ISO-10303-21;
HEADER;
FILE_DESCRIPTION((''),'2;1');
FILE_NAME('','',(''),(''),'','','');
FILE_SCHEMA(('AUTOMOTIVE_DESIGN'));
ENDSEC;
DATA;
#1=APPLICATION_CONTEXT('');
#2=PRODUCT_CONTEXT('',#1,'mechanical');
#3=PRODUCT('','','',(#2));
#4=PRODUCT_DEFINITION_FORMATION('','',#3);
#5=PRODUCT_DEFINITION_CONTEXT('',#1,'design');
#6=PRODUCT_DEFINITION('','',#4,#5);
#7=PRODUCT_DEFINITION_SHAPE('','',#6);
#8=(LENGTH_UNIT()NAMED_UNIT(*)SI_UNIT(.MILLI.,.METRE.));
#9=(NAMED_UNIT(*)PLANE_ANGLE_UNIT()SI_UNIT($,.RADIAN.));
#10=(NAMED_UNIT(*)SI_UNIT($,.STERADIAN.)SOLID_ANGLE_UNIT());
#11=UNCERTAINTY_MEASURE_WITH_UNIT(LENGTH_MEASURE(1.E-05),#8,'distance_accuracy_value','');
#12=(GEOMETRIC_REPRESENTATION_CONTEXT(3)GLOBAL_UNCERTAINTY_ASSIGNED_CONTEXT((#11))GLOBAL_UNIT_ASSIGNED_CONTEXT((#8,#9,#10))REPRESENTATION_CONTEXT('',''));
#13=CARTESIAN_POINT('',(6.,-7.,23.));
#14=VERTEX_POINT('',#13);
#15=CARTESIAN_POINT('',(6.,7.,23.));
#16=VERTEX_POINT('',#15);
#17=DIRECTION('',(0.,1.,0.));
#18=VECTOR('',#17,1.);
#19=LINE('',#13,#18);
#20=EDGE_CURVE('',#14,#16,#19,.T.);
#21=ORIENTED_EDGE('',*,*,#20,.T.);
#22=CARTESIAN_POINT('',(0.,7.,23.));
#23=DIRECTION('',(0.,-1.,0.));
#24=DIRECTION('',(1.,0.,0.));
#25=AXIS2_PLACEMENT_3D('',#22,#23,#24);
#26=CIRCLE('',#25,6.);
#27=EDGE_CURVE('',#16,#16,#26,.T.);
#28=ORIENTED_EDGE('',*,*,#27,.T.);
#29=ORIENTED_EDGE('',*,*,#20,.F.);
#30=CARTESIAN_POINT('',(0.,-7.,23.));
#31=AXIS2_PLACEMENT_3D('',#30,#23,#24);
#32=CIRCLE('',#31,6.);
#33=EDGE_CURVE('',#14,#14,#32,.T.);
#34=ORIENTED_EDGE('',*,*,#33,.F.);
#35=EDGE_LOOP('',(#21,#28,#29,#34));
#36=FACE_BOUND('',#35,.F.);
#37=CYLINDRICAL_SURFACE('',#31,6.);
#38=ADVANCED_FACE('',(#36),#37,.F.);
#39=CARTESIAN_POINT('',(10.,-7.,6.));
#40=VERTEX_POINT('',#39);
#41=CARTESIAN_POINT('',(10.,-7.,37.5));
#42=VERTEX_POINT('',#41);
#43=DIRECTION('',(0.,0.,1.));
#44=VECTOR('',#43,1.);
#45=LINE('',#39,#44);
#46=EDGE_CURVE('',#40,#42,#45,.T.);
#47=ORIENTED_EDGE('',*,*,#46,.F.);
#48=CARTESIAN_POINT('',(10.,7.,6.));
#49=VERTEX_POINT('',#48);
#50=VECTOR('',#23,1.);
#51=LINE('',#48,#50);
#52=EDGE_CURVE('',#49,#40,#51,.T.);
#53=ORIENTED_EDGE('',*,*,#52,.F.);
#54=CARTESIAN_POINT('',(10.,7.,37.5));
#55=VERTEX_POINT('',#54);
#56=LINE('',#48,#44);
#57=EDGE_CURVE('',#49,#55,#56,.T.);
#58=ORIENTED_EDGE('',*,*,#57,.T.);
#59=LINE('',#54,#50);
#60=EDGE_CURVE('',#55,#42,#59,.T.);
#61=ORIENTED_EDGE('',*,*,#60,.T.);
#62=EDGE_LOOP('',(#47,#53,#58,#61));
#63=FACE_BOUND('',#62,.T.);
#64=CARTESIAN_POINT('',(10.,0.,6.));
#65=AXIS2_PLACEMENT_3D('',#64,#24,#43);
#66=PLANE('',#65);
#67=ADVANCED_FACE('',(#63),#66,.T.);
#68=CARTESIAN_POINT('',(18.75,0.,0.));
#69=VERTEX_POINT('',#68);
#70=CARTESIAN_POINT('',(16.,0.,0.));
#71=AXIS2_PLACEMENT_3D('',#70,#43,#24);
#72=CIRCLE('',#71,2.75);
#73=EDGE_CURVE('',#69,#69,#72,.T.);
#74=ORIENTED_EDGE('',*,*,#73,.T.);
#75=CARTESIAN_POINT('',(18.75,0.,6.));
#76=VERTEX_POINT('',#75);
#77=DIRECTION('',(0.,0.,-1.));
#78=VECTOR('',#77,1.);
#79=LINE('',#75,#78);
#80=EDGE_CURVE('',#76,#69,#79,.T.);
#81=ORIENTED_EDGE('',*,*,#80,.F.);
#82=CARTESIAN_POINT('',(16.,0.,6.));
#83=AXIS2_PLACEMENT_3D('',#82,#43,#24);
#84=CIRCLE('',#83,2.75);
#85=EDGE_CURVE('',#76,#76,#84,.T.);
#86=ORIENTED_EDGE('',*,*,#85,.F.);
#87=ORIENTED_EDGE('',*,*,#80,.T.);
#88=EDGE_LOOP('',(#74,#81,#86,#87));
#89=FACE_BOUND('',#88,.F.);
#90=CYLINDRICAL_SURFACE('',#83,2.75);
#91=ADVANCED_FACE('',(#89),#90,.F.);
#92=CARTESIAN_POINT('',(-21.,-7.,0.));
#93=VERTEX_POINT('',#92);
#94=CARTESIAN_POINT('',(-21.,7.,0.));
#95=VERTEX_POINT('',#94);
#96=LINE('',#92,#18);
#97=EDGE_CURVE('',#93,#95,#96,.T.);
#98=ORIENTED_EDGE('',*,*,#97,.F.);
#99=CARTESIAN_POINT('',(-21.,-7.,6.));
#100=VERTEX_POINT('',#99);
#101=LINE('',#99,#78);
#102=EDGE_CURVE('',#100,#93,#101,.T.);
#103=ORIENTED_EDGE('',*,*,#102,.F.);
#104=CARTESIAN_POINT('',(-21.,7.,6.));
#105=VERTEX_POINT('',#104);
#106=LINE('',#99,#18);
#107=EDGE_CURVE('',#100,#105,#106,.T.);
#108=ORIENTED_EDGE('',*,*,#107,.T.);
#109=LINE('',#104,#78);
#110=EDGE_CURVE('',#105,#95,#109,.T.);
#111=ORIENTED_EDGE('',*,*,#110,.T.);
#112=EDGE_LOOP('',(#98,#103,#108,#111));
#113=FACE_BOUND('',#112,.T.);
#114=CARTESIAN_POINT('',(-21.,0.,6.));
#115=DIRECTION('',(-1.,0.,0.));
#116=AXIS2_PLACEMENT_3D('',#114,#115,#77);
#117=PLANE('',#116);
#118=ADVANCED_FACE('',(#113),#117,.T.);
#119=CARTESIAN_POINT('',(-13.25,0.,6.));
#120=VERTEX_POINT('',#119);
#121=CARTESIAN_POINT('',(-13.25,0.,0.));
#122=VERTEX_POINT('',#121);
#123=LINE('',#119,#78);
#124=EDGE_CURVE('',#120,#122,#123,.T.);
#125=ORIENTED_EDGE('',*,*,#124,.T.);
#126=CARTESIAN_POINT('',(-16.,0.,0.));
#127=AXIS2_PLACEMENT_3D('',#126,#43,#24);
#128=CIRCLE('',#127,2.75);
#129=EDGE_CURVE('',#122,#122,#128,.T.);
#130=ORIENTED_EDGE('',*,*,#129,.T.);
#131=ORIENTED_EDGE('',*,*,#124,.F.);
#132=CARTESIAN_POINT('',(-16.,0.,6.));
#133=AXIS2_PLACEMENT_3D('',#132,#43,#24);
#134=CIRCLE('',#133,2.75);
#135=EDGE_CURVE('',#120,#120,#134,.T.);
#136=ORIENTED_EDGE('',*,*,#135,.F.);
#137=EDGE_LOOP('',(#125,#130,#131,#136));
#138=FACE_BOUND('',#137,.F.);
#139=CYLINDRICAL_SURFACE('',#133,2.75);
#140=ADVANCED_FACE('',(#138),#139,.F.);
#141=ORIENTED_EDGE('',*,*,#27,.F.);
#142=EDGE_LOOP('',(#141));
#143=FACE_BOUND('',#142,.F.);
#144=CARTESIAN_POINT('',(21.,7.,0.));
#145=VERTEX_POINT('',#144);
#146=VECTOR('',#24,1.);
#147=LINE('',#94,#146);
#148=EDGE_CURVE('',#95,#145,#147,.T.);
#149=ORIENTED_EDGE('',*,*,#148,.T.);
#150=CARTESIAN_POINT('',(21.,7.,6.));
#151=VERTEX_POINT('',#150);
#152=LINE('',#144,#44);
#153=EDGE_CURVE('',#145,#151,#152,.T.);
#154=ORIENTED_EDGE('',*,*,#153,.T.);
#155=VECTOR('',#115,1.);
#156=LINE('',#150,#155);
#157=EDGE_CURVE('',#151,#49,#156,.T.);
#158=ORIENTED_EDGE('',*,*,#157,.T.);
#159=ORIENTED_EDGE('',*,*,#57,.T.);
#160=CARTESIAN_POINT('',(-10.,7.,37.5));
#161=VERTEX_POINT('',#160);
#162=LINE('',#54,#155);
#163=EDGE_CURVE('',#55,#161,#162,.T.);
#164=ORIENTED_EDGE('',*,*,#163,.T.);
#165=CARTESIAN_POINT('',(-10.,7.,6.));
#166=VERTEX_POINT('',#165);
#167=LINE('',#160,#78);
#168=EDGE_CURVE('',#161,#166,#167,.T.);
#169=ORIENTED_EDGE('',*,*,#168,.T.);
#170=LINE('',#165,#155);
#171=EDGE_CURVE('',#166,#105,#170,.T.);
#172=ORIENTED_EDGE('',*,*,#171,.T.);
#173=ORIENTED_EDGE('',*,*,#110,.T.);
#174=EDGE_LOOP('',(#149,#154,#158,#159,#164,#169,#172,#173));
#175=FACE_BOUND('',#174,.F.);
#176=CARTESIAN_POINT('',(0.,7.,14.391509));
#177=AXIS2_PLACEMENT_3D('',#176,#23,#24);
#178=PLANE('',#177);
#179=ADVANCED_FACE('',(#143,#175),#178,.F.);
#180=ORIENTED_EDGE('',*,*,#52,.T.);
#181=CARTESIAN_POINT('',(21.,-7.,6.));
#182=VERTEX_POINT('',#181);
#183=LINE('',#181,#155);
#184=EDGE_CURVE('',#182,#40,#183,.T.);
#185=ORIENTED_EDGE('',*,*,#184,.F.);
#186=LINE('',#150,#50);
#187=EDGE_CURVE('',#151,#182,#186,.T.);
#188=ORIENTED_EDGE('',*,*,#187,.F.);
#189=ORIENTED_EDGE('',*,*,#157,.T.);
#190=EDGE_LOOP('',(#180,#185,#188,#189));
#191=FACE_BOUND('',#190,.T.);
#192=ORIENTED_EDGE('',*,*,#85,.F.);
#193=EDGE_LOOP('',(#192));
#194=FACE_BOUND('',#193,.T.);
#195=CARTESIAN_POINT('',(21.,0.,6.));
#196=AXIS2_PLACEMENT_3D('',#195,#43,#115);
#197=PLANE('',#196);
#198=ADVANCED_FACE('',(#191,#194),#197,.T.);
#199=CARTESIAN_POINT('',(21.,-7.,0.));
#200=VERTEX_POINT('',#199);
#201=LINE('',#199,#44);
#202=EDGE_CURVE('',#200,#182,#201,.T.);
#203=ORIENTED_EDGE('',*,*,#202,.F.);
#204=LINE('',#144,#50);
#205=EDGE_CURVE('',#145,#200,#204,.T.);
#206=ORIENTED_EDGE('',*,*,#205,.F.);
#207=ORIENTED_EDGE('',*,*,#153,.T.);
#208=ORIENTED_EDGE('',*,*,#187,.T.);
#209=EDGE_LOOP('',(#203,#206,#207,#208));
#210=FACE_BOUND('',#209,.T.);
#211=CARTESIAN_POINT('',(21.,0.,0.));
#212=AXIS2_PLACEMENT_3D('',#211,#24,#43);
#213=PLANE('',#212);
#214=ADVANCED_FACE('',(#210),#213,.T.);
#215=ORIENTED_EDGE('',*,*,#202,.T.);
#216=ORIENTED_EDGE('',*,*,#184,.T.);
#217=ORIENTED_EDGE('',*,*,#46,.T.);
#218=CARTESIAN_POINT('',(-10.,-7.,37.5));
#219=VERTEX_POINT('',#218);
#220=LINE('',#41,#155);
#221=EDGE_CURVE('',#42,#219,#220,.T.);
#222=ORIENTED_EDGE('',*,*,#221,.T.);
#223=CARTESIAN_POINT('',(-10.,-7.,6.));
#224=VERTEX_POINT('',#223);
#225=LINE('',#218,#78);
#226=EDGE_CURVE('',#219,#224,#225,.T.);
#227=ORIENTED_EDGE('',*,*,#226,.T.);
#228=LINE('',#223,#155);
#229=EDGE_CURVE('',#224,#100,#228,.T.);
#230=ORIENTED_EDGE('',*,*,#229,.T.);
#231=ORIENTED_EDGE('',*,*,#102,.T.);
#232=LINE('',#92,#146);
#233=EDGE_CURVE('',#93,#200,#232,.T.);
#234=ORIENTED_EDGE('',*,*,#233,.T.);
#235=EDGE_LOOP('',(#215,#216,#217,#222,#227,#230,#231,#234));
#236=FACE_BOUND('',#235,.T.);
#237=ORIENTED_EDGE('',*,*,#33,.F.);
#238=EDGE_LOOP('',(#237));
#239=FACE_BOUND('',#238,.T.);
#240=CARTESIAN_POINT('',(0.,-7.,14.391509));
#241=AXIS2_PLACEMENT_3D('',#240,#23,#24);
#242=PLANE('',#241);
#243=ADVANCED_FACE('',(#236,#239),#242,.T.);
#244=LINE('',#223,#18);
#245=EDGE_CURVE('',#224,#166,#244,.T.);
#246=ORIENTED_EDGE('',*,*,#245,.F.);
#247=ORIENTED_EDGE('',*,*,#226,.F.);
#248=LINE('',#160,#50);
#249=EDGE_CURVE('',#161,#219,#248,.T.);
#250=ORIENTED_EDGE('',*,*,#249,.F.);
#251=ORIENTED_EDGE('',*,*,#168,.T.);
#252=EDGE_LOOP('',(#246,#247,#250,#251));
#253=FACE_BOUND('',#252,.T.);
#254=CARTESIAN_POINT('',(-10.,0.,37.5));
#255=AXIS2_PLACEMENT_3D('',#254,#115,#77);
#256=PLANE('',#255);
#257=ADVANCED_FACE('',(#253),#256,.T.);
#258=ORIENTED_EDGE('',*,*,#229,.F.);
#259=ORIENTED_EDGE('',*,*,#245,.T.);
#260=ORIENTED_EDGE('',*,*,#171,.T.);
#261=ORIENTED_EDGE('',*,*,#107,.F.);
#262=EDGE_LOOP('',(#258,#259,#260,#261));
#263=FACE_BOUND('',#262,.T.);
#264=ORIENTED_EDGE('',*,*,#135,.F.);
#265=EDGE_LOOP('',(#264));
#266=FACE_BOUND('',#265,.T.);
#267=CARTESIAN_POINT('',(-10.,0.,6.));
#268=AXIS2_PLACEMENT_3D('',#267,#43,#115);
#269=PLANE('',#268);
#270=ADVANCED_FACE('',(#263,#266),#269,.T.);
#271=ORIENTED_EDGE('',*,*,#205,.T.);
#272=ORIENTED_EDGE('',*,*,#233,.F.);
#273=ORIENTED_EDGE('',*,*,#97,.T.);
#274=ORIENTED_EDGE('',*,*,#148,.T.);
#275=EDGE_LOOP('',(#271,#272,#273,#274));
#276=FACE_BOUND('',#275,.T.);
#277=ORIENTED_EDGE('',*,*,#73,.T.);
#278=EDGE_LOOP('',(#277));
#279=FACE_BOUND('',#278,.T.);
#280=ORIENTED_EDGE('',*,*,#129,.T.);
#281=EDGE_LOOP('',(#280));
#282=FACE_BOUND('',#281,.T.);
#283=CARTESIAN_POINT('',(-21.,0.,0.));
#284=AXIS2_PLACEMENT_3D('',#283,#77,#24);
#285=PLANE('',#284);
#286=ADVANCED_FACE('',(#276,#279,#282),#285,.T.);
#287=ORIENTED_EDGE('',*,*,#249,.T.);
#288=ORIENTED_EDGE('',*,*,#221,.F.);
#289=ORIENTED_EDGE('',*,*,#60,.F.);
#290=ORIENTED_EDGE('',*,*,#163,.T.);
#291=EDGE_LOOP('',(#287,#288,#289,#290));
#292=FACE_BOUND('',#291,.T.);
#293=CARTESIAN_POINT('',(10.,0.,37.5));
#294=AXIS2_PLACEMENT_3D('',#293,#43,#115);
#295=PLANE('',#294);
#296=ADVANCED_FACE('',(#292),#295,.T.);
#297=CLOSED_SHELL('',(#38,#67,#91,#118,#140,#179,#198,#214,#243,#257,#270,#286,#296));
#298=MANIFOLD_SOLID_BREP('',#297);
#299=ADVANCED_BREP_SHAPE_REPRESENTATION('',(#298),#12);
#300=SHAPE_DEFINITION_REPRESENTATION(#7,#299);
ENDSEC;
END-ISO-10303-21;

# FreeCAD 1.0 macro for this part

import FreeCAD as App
import Part
import Sketcher
Q = App.Units.Quantity

doc = App.newDocument("Part")
body = doc.addObject("PartDesign::Body", "Body")

# Sketch on XZ plane
sketch1 = body.newObject("Sketcher::SketchObject", "Sketch")
sketch1.AttachmentSupport = (doc.getObject("XZ_Plane"), [""])
sketch1.MapMode = "FlatFace"
sketch1.addGeometry([
    Part.LineSegment(App.Vector(-21, 0, 0), App.Vector(21, 0, 0)),  # 0
    Part.LineSegment(App.Vector(21, 0, 0), App.Vector(21, 6, 0)),  # 1
    Part.LineSegment(App.Vector(21, 6, 0), App.Vector(10, 6, 0)),  # 2
    Part.LineSegment(App.Vector(10, 6, 0), App.Vector(10, 38, 0)),  # 3
    Part.LineSegment(App.Vector(10, 38, 0), App.Vector(-10, 38, 0)),  # 4
    Part.LineSegment(App.Vector(-10, 38, 0), App.Vector(-10, 6, 0)),  # 5
    Part.LineSegment(App.Vector(-10, 6, 0), App.Vector(-21, 6, 0)),  # 6
    Part.LineSegment(App.Vector(-21, 6, 0), App.Vector(-21, 0, 0)),  # 7
], False)
sketch1.addConstraint([
    Sketcher.Constraint("Coincident", 0, 2, 1, 1),
    Sketcher.Constraint("Coincident", 1, 2, 2, 1),
    Sketcher.Constraint("Coincident", 2, 2, 3, 1),
    Sketcher.Constraint("Coincident", 3, 2, 4, 1),
    Sketcher.Constraint("Coincident", 4, 2, 5, 1),
    Sketcher.Constraint("Coincident", 5, 2, 6, 1),
    Sketcher.Constraint("Coincident", 6, 2, 7, 1),
    Sketcher.Constraint("Coincident", 7, 2, 0, 1),
    Sketcher.Constraint("Horizontal", 0),
    Sketcher.Constraint("Vertical", 1),
    Sketcher.Constraint("Horizontal", 2),
    Sketcher.Constraint("Vertical", 3),
    Sketcher.Constraint("Horizontal", 4),
    Sketcher.Constraint("Vertical", 5),
    Sketcher.Constraint("Horizontal", 6),
    Sketcher.Constraint("Vertical", 7),
    Sketcher.Constraint("Symmetric", 0, 2, 7, 2, -1, 1),
    Sketcher.Constraint("Symmetric", 2, 2, 5, 2, -2),
    Sketcher.Constraint("DistanceX", 0, 1, 0, 2, Q("42 mm")),
    Sketcher.Constraint("DistanceX", 2, 2, 2, 1, Q("11 mm")),
    Sketcher.Constraint("DistanceY", 1, 1, 1, 2, Q("6 mm")),
    Sketcher.Constraint("DistanceY", 3, 1, 3, 2, Q("31.5 mm")),
])
pad1 = body.newObject("PartDesign::Pad", "Pad")
pad1.Profile = sketch1
pad1.Length = 14
pad1.Midplane = True

# Sketch on XZ plane
sketch2 = body.newObject("Sketcher::SketchObject", "Sketch001")
sketch2.AttachmentSupport = (doc.getObject("XZ_Plane"), [""])
sketch2.MapMode = "FlatFace"
sketch2.AttachmentOffset = App.Placement(App.Vector(0, 0, 7), App.Rotation())
sketch2.addGeometry(Part.Circle(App.Vector(0, 23, 0), App.Vector(0, 0, 1), 6), False)
sketch2.addConstraint([
    Sketcher.Constraint("PointOnObject", 0, 3, -2),
    Sketcher.Constraint("Diameter", 0, Q("12 mm")),
    Sketcher.Constraint("DistanceY", -1, 1, 0, 3, Q("23 mm")),
])
pocket1 = body.newObject("PartDesign::Pocket", "Pocket")
pocket1.Profile = sketch2
pocket1.Type = "ThroughAll"

# Sketch on XY plane
sketch3 = body.newObject("Sketcher::SketchObject", "Sketch002")
sketch3.AttachmentSupport = (doc.getObject("XY_Plane"), [""])
sketch3.MapMode = "FlatFace"
sketch3.AttachmentOffset = App.Placement(App.Vector(0, 0, 6), App.Rotation())
sketch3.addGeometry([
    Part.Circle(App.Vector(-16, 0, 0), App.Vector(0, 0, 1), 2.8),
    Part.Circle(App.Vector(16, 0, 0), App.Vector(0, 0, 1), 2.8),
], False)
sketch3.addConstraint([
    Sketcher.Constraint("Equal", 0, 1),
    Sketcher.Constraint("Symmetric", 0, 3, 1, 3, -1, 1),
    Sketcher.Constraint("PointOnObject", 0, 3, -1),
    Sketcher.Constraint("Diameter", 0, Q("5.5 mm")),
    Sketcher.Constraint("DistanceX", 0, 3, -1, 1, Q("16 mm")),
])
pocket2 = body.newObject("PartDesign::Pocket", "Pocket001")
pocket2.Profile = sketch3
pocket2.Type = "ThroughAll"

doc.recompute()
